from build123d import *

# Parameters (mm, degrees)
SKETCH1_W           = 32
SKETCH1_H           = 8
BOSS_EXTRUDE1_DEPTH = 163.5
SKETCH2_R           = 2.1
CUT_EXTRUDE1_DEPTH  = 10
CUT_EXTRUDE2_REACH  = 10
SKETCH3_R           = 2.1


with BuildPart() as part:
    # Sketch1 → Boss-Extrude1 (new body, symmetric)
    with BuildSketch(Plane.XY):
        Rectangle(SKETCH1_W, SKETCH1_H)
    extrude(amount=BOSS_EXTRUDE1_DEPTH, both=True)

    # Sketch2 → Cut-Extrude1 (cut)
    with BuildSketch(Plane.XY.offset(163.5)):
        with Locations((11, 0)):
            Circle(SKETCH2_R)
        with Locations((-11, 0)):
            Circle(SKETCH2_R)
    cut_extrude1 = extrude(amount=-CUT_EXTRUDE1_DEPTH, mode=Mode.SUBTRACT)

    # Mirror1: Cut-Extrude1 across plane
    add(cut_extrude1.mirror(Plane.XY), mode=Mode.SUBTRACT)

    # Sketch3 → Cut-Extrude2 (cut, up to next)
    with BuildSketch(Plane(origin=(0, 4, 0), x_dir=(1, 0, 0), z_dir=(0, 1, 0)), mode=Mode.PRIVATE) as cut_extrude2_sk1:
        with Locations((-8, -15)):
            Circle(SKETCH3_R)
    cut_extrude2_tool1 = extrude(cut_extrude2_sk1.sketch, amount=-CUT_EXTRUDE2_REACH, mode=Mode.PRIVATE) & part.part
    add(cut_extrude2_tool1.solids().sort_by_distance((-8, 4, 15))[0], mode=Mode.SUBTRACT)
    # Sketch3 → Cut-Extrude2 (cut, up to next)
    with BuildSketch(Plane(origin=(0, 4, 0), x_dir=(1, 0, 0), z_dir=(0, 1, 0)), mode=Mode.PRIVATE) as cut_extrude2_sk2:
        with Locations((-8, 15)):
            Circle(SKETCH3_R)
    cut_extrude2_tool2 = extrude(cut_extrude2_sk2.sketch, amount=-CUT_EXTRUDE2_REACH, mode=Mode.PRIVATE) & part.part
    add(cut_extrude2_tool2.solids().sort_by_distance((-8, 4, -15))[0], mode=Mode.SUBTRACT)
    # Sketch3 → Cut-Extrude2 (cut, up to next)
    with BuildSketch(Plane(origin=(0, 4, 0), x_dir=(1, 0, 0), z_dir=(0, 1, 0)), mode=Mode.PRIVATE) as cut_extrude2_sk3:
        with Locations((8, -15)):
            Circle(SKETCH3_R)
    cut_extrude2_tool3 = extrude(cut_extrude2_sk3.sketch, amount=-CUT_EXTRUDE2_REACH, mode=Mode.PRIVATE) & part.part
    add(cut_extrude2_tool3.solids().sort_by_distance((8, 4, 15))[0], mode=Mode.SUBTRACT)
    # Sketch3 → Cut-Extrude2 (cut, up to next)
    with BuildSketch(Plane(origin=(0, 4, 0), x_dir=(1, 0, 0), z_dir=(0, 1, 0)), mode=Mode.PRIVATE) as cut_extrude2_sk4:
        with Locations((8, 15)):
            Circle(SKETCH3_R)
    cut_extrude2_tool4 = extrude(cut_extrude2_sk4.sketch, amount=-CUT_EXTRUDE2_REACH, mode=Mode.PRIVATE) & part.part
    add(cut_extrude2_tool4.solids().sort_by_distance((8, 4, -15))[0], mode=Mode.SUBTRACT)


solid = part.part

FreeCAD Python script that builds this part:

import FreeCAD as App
import Part
import Sketcher
Q = App.Units.Quantity


def add_polygon(sketch, points):
    """Adds a closed chain of lines whose ends are joined by coincident constraints."""
    first, n = sketch.GeometryCount, len(points)
    for a, b in zip(points, points[1:] + points[:1]):
        sketch.addGeometry(Part.LineSegment(App.Vector(*a, 0), App.Vector(*b, 0)), False)
    for i in range(n):
        sketch.addConstraint(Sketcher.Constraint("Coincident", first + i, 2, first + (i + 1) % n, 1))

doc = App.newDocument("Part")
body = doc.addObject("PartDesign::Body", "Body")

# Sketch on XY plane
sketch1 = doc.addObject("Sketcher::SketchObject", "Sketch")
body.addObject(sketch1)
sketch1.AttachmentSupport = (doc.XY_Plane, [""])
sketch1.MapMode = "FlatFace"
add_polygon(sketch1, [(-16, 4), (-16, -4), (16, -4), (16, 4)])  # lines 0-3
sketch1.addConstraint([
    Sketcher.Constraint("Vertical", 0),
    Sketcher.Constraint("Horizontal", 1),
    Sketcher.Constraint("Vertical", 2),
    Sketcher.Constraint("Horizontal", 3),
    Sketcher.Constraint("Symmetric", 0, 2, 2, 2, -1, 1),
    Sketcher.Constraint("DistanceX", 1, 1, 1, 2, Q("32 mm")),
    Sketcher.Constraint("DistanceY", 0, 2, 0, 1, Q("8 mm")),
])
pad1 = doc.addObject("PartDesign::Pad", "Pad")
body.addObject(pad1)
pad1.Profile = sketch1
pad1.Length = 327
pad1.Midplane = True

# Sketch on XY plane
sketch2 = doc.addObject("Sketcher::SketchObject", "Sketch001")
body.addObject(sketch2)
sketch2.AttachmentSupport = (doc.XY_Plane, [""])
sketch2.MapMode = "FlatFace"
sketch2.AttachmentOffset = App.Placement(App.Vector(0, 0, 163.5), App.Rotation())
sketch2.addGeometry([
    Part.Circle(App.Vector(11, 0, 0), App.Vector(0, 0, 1), 2.1),
    Part.Circle(App.Vector(-11, 0, 0), App.Vector(0, 0, 1), 2.1),
], False)
sketch2.addConstraint([
    Sketcher.Constraint("Equal", 0, 1),
    Sketcher.Constraint("Symmetric", 0, 3, 1, 3, -1, 1),
    Sketcher.Constraint("PointOnObject", 0, 3, -1),
    Sketcher.Constraint("Diameter", 0, Q("4.2 mm")),
    Sketcher.Constraint("DistanceX", -1, 1, 0, 3, Q("11 mm")),
])
pocket1 = doc.addObject("PartDesign::Pocket", "Pocket")
body.addObject(pocket1)
pocket1.Profile = sketch2
pocket1.Length = 10
doc.recompute()

mirrored = doc.addObject("PartDesign::Mirrored", "Mirrored")
body.addObject(mirrored)
mirrored.Originals = [pocket1]
mirrored.MirrorPlane = (doc.XY_Plane, [""])
body.Tip = mirrored

# Sketch on XZ plane
sketch3 = doc.addObject("Sketcher::SketchObject", "Sketch002")
body.addObject(sketch3)
sketch3.AttachmentSupport = (doc.XZ_Plane, [""])
sketch3.MapMode = "FlatFace"
sketch3.AttachmentOffset = App.Placement(App.Vector(0, 0, -4), App.Rotation())
sketch3.addGeometry(Part.Circle(App.Vector(-8, 15, 0), App.Vector(0, 0, 1), 2.1), False)
sketch3.addConstraint([
    Sketcher.Constraint("Diameter", 0, Q("4.2 mm")),
    Sketcher.Constraint("DistanceX", 0, 3, -1, 1, Q("8 mm")),
    Sketcher.Constraint("DistanceY", -1, 1, 0, 3, Q("15 mm")),
])
pocket2 = doc.addObject("PartDesign::Pocket", "Pocket001")
body.addObject(pocket2)
pocket2.Profile = sketch3
pocket2.Type = "UpToFirst"
pocket2.Reversed = True

# Sketch on XZ plane
sketch4 = doc.addObject("Sketcher::SketchObject", "Sketch003")
body.addObject(sketch4)
sketch4.AttachmentSupport = (doc.XZ_Plane, [""])
sketch4.MapMode = "FlatFace"
sketch4.AttachmentOffset = App.Placement(App.Vector(0, 0, -4), App.Rotation())
sketch4.addGeometry(Part.Circle(App.Vector(-8, -15, 0), App.Vector(0, 0, 1), 2.1), False)
sketch4.addConstraint([
    Sketcher.Constraint("Diameter", 0, Q("4.2 mm")),
    Sketcher.Constraint("DistanceX", 0, 3, -1, 1, Q("8 mm")),
    Sketcher.Constraint("DistanceY", 0, 3, -1, 1, Q("15 mm")),
])
pocket3 = doc.addObject("PartDesign::Pocket", "Pocket002")
body.addObject(pocket3)
pocket3.Profile = sketch4
pocket3.Type = "UpToFirst"
pocket3.Reversed = True

# Sketch on XZ plane
sketch5 = doc.addObject("Sketcher::SketchObject", "Sketch004")
body.addObject(sketch5)
sketch5.AttachmentSupport = (doc.XZ_Plane, [""])
sketch5.MapMode = "FlatFace"
sketch5.AttachmentOffset = App.Placement(App.Vector(0, 0, -4), App.Rotation())
sketch5.addGeometry(Part.Circle(App.Vector(8, 15, 0), App.Vector(0, 0, 1), 2.1), False)
sketch5.addConstraint([
    Sketcher.Constraint("Diameter", 0, Q("4.2 mm")),
    Sketcher.Constraint("DistanceX", -1, 1, 0, 3, Q("8 mm")),
    Sketcher.Constraint("DistanceY", -1, 1, 0, 3, Q("15 mm")),
])
pocket4 = doc.addObject("PartDesign::Pocket", "Pocket003")
body.addObject(pocket4)
pocket4.Profile = sketch5
pocket4.Type = "UpToFirst"
pocket4.Reversed = True

# Sketch on XZ plane
sketch6 = doc.addObject("Sketcher::SketchObject", "Sketch005")
body.addObject(sketch6)
sketch6.AttachmentSupport = (doc.XZ_Plane, [""])
sketch6.MapMode = "FlatFace"
sketch6.AttachmentOffset = App.Placement(App.Vector(0, 0, -4), App.Rotation())
sketch6.addGeometry(Part.Circle(App.Vector(8, -15, 0), App.Vector(0, 0, 1), 2.1), False)
sketch6.addConstraint([
    Sketcher.Constraint("Diameter", 0, Q("4.2 mm")),
    Sketcher.Constraint("DistanceX", -1, 1, 0, 3, Q("8 mm")),
    Sketcher.Constraint("DistanceY", 0, 3, -1, 1, Q("15 mm")),
])
pocket5 = doc.addObject("PartDesign::Pocket", "Pocket004")
body.addObject(pocket5)
pocket5.Profile = sketch6
pocket5.Type = "UpToFirst"
pocket5.Reversed = True

doc.recompute()
